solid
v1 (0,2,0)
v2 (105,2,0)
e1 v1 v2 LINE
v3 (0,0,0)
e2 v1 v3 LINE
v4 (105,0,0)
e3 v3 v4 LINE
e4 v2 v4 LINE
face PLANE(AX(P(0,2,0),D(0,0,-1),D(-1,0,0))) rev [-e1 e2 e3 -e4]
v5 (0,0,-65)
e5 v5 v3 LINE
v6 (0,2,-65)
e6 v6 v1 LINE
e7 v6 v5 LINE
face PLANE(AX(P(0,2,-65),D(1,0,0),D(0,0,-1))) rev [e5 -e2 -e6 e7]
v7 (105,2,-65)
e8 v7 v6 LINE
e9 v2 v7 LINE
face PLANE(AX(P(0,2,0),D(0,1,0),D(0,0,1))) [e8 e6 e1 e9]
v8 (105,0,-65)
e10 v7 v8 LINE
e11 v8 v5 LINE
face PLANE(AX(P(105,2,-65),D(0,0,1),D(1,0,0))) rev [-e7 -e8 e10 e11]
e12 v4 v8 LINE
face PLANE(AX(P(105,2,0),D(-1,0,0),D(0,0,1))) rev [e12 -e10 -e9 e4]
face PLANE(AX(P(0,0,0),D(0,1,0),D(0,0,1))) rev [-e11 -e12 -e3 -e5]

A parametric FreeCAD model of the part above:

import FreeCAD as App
import Part
import Sketcher

V = App.Vector


def add_polygon(sketch, points):
    """Adds a closed chain of lines whose ends are joined by coincident constraints."""
    first, n = sketch.GeometryCount, len(points)
    for a, b in zip(points, points[1:] + points[:1]):
        sketch.addGeometry(Part.LineSegment(App.Vector(*a, 0), App.Vector(*b, 0)), False)
    for i in range(n):
        sketch.addConstraint(Sketcher.Constraint("Coincident", first + i, 2, first + (i + 1) % n, 1))

doc = App.newDocument("Part")
params = doc.addObject("Spreadsheet::Sheet", "Params")
for row, (alias, value) in enumerate([
    ("sketch1_width", "105 mm"),
    ("sketch1_height", "65 mm"),
    ("pad1_length", "2 mm"),
], start=1):
    params.set(f"A{row}", alias)
    params.set(f"B{row}", "=" + value)
    params.setAlias(f"B{row}", alias)

body = doc.addObject("PartDesign::Body", "Body")

sketch1 = body.newObject("Sketcher::SketchObject", "Sketch")
sketch1.AttachmentSupport = (doc.getObject("XZ_Plane"), [""])
sketch1.MapMode = "FlatFace"
add_polygon(sketch1, [(0, -65), (0, 0), (105, 0), (105, -65)])
sketch1.addConstraint(Sketcher.Constraint("Vertical", 0))
sketch1.addConstraint(Sketcher.Constraint("Horizontal", 1))
sketch1.addConstraint(Sketcher.Constraint("Vertical", 2))
sketch1.addConstraint(Sketcher.Constraint("Horizontal", 3))
sketch1.addConstraint(Sketcher.Constraint("Coincident", 0, 2, -1, 1))
sketch1.addConstraint(Sketcher.Constraint("DistanceX", 1, 1, 1, 2, 105.0))
sketch1.addConstraint(Sketcher.Constraint("DistanceY", 0, 1, 0, 2, 65.0))
sketch1.setExpression("Constraints[9]", "Params.sketch1_width")
sketch1.setExpression("Constraints[10]", "Params.sketch1_height")
pad1 = body.newObject("PartDesign::Pad", "Pad")
pad1.Profile = sketch1
pad1.setExpression("Length", "Params.pad1_length")
pad1.Reversed = True

doc.recompute()
